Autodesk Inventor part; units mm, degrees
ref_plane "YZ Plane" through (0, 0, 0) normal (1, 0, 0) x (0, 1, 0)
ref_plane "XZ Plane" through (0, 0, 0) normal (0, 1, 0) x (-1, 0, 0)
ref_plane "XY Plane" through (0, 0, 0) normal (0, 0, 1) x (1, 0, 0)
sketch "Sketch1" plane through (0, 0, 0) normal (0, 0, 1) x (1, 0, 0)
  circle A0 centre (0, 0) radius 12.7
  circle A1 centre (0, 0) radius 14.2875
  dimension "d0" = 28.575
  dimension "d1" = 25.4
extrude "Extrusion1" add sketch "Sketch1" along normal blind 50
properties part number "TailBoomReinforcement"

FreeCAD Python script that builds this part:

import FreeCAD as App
import Part
import Sketcher
Q = App.Units.Quantity

doc = App.newDocument("Part")
body = doc.addObject("PartDesign::Body", "Body")

sketch1 = body.newObject("Sketcher::SketchObject", "Sketch")
sketch1.AttachmentSupport = (doc.getObject("XY_Plane"), [""])
sketch1.MapMode = "FlatFace"
sketch1.addGeometry([
    Part.Circle(App.Vector(0, 0, 0), App.Vector(0, 0, 1), 14),
    Part.Circle(App.Vector(0, 0, 0), App.Vector(0, 0, 1), 13),
], False)
sketch1.addConstraint([
    Sketcher.Constraint("Coincident", 0, 3, -1, 1),
    Sketcher.Constraint("Coincident", 1, 3, -1, 1),
    Sketcher.Constraint("Diameter", 1, Q("1 in")),
    Sketcher.Constraint("Diameter", 0, Q("1.125 in")),
])
pad1 = body.newObject("PartDesign::Pad", "Pad")
pad1.Profile = sketch1
pad1.Length = Q("1.9685039 in")

doc.recompute()
